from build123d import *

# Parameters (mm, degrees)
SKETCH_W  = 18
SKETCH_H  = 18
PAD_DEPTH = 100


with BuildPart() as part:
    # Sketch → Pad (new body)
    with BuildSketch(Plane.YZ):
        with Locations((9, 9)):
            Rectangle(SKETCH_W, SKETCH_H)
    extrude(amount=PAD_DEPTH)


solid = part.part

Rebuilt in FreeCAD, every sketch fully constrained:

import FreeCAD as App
import Part
import Sketcher

doc = App.newDocument("Part")
body = doc.addObject("PartDesign::Body", "Body")

# Sketch on YZ plane
sketch1 = doc.addObject("Sketcher::SketchObject", "Sketch")
body.addObject(sketch1)
sketch1.AttachmentSupport = (doc.YZ_Plane, [""])
sketch1.MapMode = "FlatFace"
sketch1.addGeometry(Part.LineSegment(App.Vector(0, 18, 0), App.Vector(0, 0, 0)), False)
sketch1.addGeometry(Part.LineSegment(App.Vector(0, 0, 0), App.Vector(18, 0, 0)), False)
sketch1.addGeometry(Part.LineSegment(App.Vector(18, 0, 0), App.Vector(18, 18, 0)), False)
sketch1.addGeometry(Part.LineSegment(App.Vector(18, 18, 0), App.Vector(0, 18, 0)), False)
sketch1.addConstraint(Sketcher.Constraint("Coincident", 0, 2, 1, 1))
sketch1.addConstraint(Sketcher.Constraint("Coincident", 1, 2, 2, 1))
sketch1.addConstraint(Sketcher.Constraint("Coincident", 2, 2, 3, 1))
sketch1.addConstraint(Sketcher.Constraint("Coincident", 3, 2, 0, 1))
sketch1.addConstraint(Sketcher.Constraint("Vertical", 0))
sketch1.addConstraint(Sketcher.Constraint("Horizontal", 1))
sketch1.addConstraint(Sketcher.Constraint("Vertical", 2))
sketch1.addConstraint(Sketcher.Constraint("Horizontal", 3))
sketch1.addConstraint(Sketcher.Constraint("Coincident", 0, 2, -1, 1))
sketch1.addConstraint(Sketcher.Constraint("Equal", 3, 0))
sketch1.addConstraint(Sketcher.Constraint("DistanceX", 1, 1, 1, 2, 18.0))
pad1 = doc.addObject("PartDesign::Pad", "Pad")
body.addObject(pad1)
pad1.Profile = sketch1
pad1.Length = 100

doc.recompute()
